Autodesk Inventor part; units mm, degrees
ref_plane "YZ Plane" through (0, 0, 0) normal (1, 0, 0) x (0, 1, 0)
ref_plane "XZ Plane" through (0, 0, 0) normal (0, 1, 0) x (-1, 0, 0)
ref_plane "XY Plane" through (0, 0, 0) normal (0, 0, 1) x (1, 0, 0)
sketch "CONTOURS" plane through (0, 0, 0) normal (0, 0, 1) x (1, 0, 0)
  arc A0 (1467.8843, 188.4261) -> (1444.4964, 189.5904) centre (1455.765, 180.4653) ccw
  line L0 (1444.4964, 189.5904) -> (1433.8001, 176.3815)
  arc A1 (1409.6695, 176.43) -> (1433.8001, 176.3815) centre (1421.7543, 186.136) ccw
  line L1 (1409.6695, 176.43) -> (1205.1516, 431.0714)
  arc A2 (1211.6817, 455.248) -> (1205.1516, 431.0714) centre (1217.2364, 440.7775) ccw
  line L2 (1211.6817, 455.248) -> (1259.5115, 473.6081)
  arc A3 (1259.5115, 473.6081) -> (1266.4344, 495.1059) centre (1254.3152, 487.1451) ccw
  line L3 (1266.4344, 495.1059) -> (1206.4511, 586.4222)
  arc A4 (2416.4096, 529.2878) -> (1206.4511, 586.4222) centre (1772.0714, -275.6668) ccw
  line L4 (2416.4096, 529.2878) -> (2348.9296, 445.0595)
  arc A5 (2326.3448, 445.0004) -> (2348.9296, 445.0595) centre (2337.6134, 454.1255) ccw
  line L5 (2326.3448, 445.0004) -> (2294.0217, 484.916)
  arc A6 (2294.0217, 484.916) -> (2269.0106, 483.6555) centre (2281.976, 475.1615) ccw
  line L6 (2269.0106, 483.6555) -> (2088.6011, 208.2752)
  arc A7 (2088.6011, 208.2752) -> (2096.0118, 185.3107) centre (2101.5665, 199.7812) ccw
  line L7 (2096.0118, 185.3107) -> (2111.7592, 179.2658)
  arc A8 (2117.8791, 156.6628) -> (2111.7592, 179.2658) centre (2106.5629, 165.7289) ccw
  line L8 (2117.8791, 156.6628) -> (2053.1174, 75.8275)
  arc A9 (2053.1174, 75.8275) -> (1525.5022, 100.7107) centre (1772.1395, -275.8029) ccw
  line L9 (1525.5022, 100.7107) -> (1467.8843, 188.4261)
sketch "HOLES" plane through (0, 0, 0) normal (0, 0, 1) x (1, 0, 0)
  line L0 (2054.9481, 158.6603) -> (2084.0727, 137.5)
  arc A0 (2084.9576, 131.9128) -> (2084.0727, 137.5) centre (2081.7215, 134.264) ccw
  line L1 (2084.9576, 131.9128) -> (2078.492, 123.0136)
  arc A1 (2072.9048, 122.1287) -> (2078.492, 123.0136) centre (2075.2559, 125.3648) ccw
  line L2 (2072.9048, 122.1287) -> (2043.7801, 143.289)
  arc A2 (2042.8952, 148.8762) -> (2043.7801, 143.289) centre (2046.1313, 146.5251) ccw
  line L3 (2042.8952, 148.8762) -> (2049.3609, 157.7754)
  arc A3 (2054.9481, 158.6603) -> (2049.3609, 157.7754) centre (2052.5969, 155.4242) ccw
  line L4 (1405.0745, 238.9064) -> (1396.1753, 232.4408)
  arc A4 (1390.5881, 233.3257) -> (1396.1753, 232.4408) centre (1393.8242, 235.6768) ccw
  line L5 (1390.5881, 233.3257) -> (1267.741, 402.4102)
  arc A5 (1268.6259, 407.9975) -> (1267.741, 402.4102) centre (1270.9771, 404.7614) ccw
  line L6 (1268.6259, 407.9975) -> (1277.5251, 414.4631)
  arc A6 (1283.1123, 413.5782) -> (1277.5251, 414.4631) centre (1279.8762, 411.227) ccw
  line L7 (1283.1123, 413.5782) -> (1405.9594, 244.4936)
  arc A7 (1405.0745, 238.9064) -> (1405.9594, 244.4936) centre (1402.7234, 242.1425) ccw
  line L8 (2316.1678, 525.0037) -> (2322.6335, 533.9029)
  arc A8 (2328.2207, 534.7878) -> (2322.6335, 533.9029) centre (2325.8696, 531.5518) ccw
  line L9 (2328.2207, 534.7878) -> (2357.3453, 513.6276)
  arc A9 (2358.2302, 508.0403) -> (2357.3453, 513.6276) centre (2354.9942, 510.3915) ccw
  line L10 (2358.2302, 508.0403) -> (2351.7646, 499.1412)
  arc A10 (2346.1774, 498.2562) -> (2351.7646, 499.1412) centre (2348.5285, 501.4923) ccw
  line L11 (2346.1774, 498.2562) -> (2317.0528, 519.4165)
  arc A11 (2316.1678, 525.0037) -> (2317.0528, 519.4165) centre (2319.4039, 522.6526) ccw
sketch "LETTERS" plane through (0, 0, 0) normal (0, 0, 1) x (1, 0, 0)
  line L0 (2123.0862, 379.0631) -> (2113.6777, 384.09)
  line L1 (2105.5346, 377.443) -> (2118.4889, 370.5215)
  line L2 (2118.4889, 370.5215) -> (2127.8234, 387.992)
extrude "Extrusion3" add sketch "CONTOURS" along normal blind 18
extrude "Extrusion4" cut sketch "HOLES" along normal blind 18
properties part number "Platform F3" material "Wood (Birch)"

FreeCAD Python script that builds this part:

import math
import FreeCAD as App
import Part
import Sketcher
Q = App.Units.Quantity

doc = App.newDocument("Part")
params = doc.addObject("Spreadsheet::Sheet", "Params")
for row, (alias, value) in enumerate([
    ("sketch1_radius", "14.5 mm"),
    ("sketch1_radius2", "15.5 mm"),
    ("pad1_length", "18 mm"),
    ("sketch2_radius", "4 mm"),
    ("sketch2_length", "36 mm"),
    ("sketch2_length2", "11 mm"),
    ("sketch2_length3", "209 mm"),
    ("pocket1_length", "18 mm"),
], start=1):
    params.set(f"A{row}", alias)
    params.set(f"B{row}", "=" + value)
    params.setAlias(f"B{row}", alias)

body = doc.addObject("PartDesign::Body", "Body")

# Sketch on XY plane
sketch1 = doc.addObject("Sketcher::SketchObject", "Sketch")
body.addObject(sketch1)
sketch1.AttachmentSupport = (doc.XY_Plane, [""])
sketch1.MapMode = "FlatFace"
sketch1.addGeometry([
    Part.ArcOfCircle(Part.Circle(App.Vector(1456, 180, 0), App.Vector(0, 0, 1), 15), math.radians(33), math.radians(141)),  # 0
    Part.LineSegment(App.Vector(1468, 188, 0), App.Vector(1526, 101, 0)),  # 1
    Part.ArcOfCircle(Part.Circle(App.Vector(1772, -276, 0), App.Vector(0, 0, 1), 450), math.radians(51), math.radians(123)),  # 2
    Part.LineSegment(App.Vector(2053, 76, 0), App.Vector(2118, 157, 0)),  # 3
    Part.ArcOfCircle(Part.Circle(App.Vector(2107, 166, 0), App.Vector(0, 0, 1), 15), math.radians(-39), math.radians(69)),  # 4
    Part.LineSegment(App.Vector(2112, 179, 0), App.Vector(2096, 185, 0)),  # 5
    Part.ArcOfCircle(Part.Circle(App.Vector(2102, 200, 0), App.Vector(0, 0, 1), 15), math.radians(147), math.radians(249)),  # 6
    Part.LineSegment(App.Vector(2089, 208, 0), App.Vector(2269, 484, 0)),  # 7
    Part.ArcOfCircle(Part.Circle(App.Vector(2282, 475, 0), App.Vector(0, 0, 1), 15), math.radians(39), math.radians(147)),  # 8
    Part.LineSegment(App.Vector(2294, 485, 0), App.Vector(2326, 445, 0)),  # 9
    Part.ArcOfCircle(Part.Circle(App.Vector(2338, 454, 0), App.Vector(0, 0, 1), 14), math.radians(-141), math.radians(-39)),  # 10
    Part.LineSegment(App.Vector(2349, 445, 0), App.Vector(2416, 529, 0)),  # 11
    Part.ArcOfCircle(Part.Circle(App.Vector(1772, -276, 0), App.Vector(0, 0, 1), 1031), math.radians(51), math.radians(123)),  # 12
    Part.LineSegment(App.Vector(1206, 586, 0), App.Vector(1266, 495, 0)),  # 13
    Part.ArcOfCircle(Part.Circle(App.Vector(1254, 487, 0), App.Vector(0, 0, 1), 15), math.radians(-69), math.radians(33)),  # 14
    Part.LineSegment(App.Vector(1260, 474, 0), App.Vector(1212, 455, 0)),  # 15
    Part.ArcOfCircle(Part.Circle(App.Vector(1217, 441, 0), App.Vector(0, 0, 1), 16), math.radians(111), math.radians(219)),  # 16
    Part.LineSegment(App.Vector(1205, 431, 0), App.Vector(1410, 176, 0)),  # 17
    Part.ArcOfCircle(Part.Circle(App.Vector(1422, 186, 0), App.Vector(0, 0, 1), 15), math.radians(-141), math.radians(-39)),  # 18
    Part.LineSegment(App.Vector(1434, 176, 0), App.Vector(1444, 190, 0)),  # 19
], False)
sketch1.addConstraint([
    Sketcher.Constraint("Tangent", 0, 1, 1, 1),
    Sketcher.Constraint("Coincident", 1, 2, 2, 2),
    Sketcher.Constraint("Coincident", 2, 1, 3, 1),
    Sketcher.Constraint("Tangent", 3, 2, 4, 1),
    Sketcher.Constraint("Tangent", 4, 2, 5, 1),
    Sketcher.Constraint("Tangent", 5, 2, 6, 2),
    Sketcher.Constraint("Tangent", 6, 1, 7, 1),
    Sketcher.Constraint("Tangent", 7, 2, 8, 2),
    Sketcher.Constraint("Tangent", 8, 1, 9, 1),
    Sketcher.Constraint("Tangent", 9, 2, 10, 1),
    Sketcher.Constraint("Tangent", 10, 2, 11, 1),
    Sketcher.Constraint("Coincident", 11, 2, 12, 1),
    Sketcher.Constraint("Coincident", 12, 2, 13, 1),
    Sketcher.Constraint("Tangent", 13, 2, 14, 2),
    Sketcher.Constraint("Tangent", 14, 1, 15, 1),
    Sketcher.Constraint("Tangent", 15, 2, 16, 1),
    Sketcher.Constraint("Tangent", 16, 2, 17, 1),
    Sketcher.Constraint("Tangent", 17, 2, 18, 1),
    Sketcher.Constraint("Tangent", 18, 2, 19, 1),
    Sketcher.Constraint("Tangent", 19, 2, 0, 2),
    Sketcher.Constraint("Equal", 0, 4),
    Sketcher.Constraint("Equal", 6, 8),
    Sketcher.Constraint("Equal", 4, 10),
    Sketcher.Constraint("Equal", 10, 14),
    Sketcher.Constraint("Equal", 8, 16),
    Sketcher.Constraint("Equal", 16, 18),
    Sketcher.Constraint("Parallel", 3, 11),
    Sketcher.Constraint("Parallel", 1, 13),
    Sketcher.Constraint("Radius", 0, Q("14.5 mm")),
    Sketcher.Constraint("Radius", 6, Q("15.5 mm")),
    Sketcher.Constraint("Angle", 5, Q("158.9999 deg")),
    Sketcher.Constraint("Angle", 9, Q("-51 deg")),
    Sketcher.Constraint("Angle", 15, Q("-159 deg")),
    Sketcher.Constraint("Angle", 19, Q("51.0001 deg")),
    Sketcher.Constraint("Angle", 1, Q("-56.7002 deg")),
    Sketcher.Constraint("Angle", 3, Q("51.2998 deg")),
    Sketcher.Constraint("DistanceX", -1, 1, 18, 2, Q("1433.8 mm")),
    Sketcher.Constraint("Angle", 7, Q("56.77 deg")),
    Sketcher.Constraint("Angle", 17, Q("-51.23 deg")),
    Sketcher.Constraint("Radius", 2, Q("450.1028 mm")),
    Sketcher.Constraint("Radius", 12, Q("1031.0789 mm")),
    Sketcher.Constraint("DistanceY", -1, 1, 17, 2, Q("176.43 mm")),
    Sketcher.Constraint("DistanceX", 16, 3, 6, 3, Q("884.33 mm")),
    Sketcher.Constraint("DistanceX", 18, 3, 0, 1, Q("46.13 mm")),
    Sketcher.Constraint("DistanceY", 10, 3, 7, 2, Q("29.53 mm")),
    Sketcher.Constraint("DistanceX", 10, 2, 11, 2, Q("67.48 mm")),
    Sketcher.Constraint("DistanceX", 13, 2, 18, 3, Q("155.32 mm")),
    Sketcher.Constraint("DistanceY", 18, 3, 13, 2, Q("308.97 mm")),
    Sketcher.Constraint("Distance", 3, Q("103.578 mm")),
    Sketcher.Constraint("Distance", 7, Q("329.214 mm")),
    Sketcher.Constraint("Distance", 13, Q("109.255 mm")),
    Sketcher.Constraint("DistanceY", 2, 3, -1, 1, Q("275.803 mm")),
    Sketcher.Constraint("DistanceX", -1, 1, 4, 3, Q("2106.563 mm")),
    Sketcher.Constraint("DistanceY", -1, 1, 4, 3, Q("165.729 mm")),
])
sketch1.setExpression("Constraints[28]", "Params.sketch1_radius")
sketch1.setExpression("Constraints[29]", "Params.sketch1_radius2")
pad1 = doc.addObject("PartDesign::Pad", "Pad")
body.addObject(pad1)
pad1.Profile = sketch1
pad1.setExpression("Length", "Params.pad1_length")

# Sketch on XY plane
sketch2 = doc.addObject("Sketcher::SketchObject", "Sketch001")
body.addObject(sketch2)
sketch2.AttachmentSupport = (doc.XY_Plane, [""])
sketch2.MapMode = "FlatFace"
sketch2.addGeometry([
    Part.LineSegment(App.Vector(2084.1, 137.5, 0), App.Vector(2054.9, 158.7, 0)),  # 0
    Part.ArcOfCircle(Part.Circle(App.Vector(2052.6, 155.4, 0), App.Vector(0, 0, 1), 4), math.radians(54), math.radians(144)),  # 1
    Part.LineSegment(App.Vector(2049.4, 157.8, 0), App.Vector(2042.9, 148.9, 0)),  # 2
    Part.ArcOfCircle(Part.Circle(App.Vector(2046.1, 146.5, 0), App.Vector(0, 0, 1), 4), math.radians(144), math.radians(234)),  # 3
    Part.LineSegment(App.Vector(2043.8, 143.3, 0), App.Vector(2072.9, 122.1, 0)),  # 4
    Part.ArcOfCircle(Part.Circle(App.Vector(2075.3, 125.4, 0), App.Vector(0, 0, 1), 4), math.radians(-126), math.radians(-36)),  # 5
    Part.LineSegment(App.Vector(2078.5, 123, 0), App.Vector(2085, 131.9, 0)),  # 6
    Part.ArcOfCircle(Part.Circle(App.Vector(2081.7, 134.3, 0), App.Vector(0, 0, 1), 4), math.radians(-36), math.radians(54)),  # 7
    Part.LineSegment(App.Vector(1396.2, 232.4, 0), App.Vector(1405.1, 238.9, 0)),  # 8
    Part.ArcOfCircle(Part.Circle(App.Vector(1402.7, 242.1, 0), App.Vector(0, 0, 1), 4), math.radians(-54), math.radians(36)),  # 9
    Part.LineSegment(App.Vector(1406, 244.5, 0), App.Vector(1283.1, 413.6, 0)),  # 10
    Part.ArcOfCircle(Part.Circle(App.Vector(1279.9, 411.2, 0), App.Vector(0, 0, 1), 4), math.radians(36), math.radians(126)),  # 11
    Part.LineSegment(App.Vector(1277.5, 414.5, 0), App.Vector(1268.6, 408, 0)),  # 12
    Part.ArcOfCircle(Part.Circle(App.Vector(1271, 404.8, 0), App.Vector(0, 0, 1), 4), math.radians(126), math.radians(216)),  # 13
    Part.LineSegment(App.Vector(1267.7, 402.4, 0), App.Vector(1390.6, 233.3, 0)),  # 14
    Part.ArcOfCircle(Part.Circle(App.Vector(1393.8, 235.7, 0), App.Vector(0, 0, 1), 4), math.radians(-144), math.radians(-54)),  # 15
    Part.LineSegment(App.Vector(2322.6, 533.9, 0), App.Vector(2316.2, 525, 0)),  # 16
    Part.ArcOfCircle(Part.Circle(App.Vector(2319.4, 522.7, 0), App.Vector(0, 0, 1), 4), math.radians(144), math.radians(234)),  # 17
    Part.LineSegment(App.Vector(2317.1, 519.4, 0), App.Vector(2346.2, 498.3, 0)),  # 18
    Part.ArcOfCircle(Part.Circle(App.Vector(2348.5, 501.5, 0), App.Vector(0, 0, 1), 4), math.radians(-126), math.radians(-36)),  # 19
    Part.LineSegment(App.Vector(2351.8, 499.1, 0), App.Vector(2358.2, 508, 0)),  # 20
    Part.ArcOfCircle(Part.Circle(App.Vector(2355, 510.4, 0), App.Vector(0, 0, 1), 4), math.radians(-36), math.radians(54)),  # 21
    Part.LineSegment(App.Vector(2357.3, 513.6, 0), App.Vector(2328.2, 534.8, 0)),  # 22
    Part.ArcOfCircle(Part.Circle(App.Vector(2325.9, 531.6, 0), App.Vector(0, 0, 1), 4), math.radians(54), math.radians(144)),  # 23
], False)
sketch2.addConstraint([
    Sketcher.Constraint("Tangent", 0, 2, 1, 1),
    Sketcher.Constraint("Tangent", 1, 2, 2, 1),
    Sketcher.Constraint("Tangent", 2, 2, 3, 1),
    Sketcher.Constraint("Tangent", 3, 2, 4, 1),
    Sketcher.Constraint("Tangent", 4, 2, 5, 1),
    Sketcher.Constraint("Tangent", 5, 2, 6, 1),
    Sketcher.Constraint("Tangent", 6, 2, 7, 1),
    Sketcher.Constraint("Tangent", 7, 2, 0, 1),
    Sketcher.Constraint("Tangent", 8, 2, 9, 1),
    Sketcher.Constraint("Tangent", 9, 2, 10, 1),
    Sketcher.Constraint("Tangent", 10, 2, 11, 1),
    Sketcher.Constraint("Tangent", 11, 2, 12, 1),
    Sketcher.Constraint("Tangent", 12, 2, 13, 1),
    Sketcher.Constraint("Tangent", 13, 2, 14, 1),
    Sketcher.Constraint("Tangent", 14, 2, 15, 1),
    Sketcher.Constraint("Tangent", 15, 2, 8, 1),
    Sketcher.Constraint("Tangent", 16, 2, 17, 1),
    Sketcher.Constraint("Tangent", 17, 2, 18, 1),
    Sketcher.Constraint("Tangent", 18, 2, 19, 1),
    Sketcher.Constraint("Tangent", 19, 2, 20, 1),
    Sketcher.Constraint("Tangent", 20, 2, 21, 1),
    Sketcher.Constraint("Tangent", 21, 2, 22, 1),
    Sketcher.Constraint("Tangent", 22, 2, 23, 1),
    Sketcher.Constraint("Tangent", 23, 2, 16, 1),
    Sketcher.Constraint("Equal", 1, 3),
    Sketcher.Constraint("Equal", 3, 5),
    Sketcher.Constraint("Equal", 5, 7),
    Sketcher.Constraint("Equal", 7, 9),
    Sketcher.Constraint("Equal", 9, 11),
    Sketcher.Constraint("Equal", 11, 13),
    Sketcher.Constraint("Equal", 13, 15),
    Sketcher.Constraint("Equal", 15, 17),
    Sketcher.Constraint("Equal", 17, 19),
    Sketcher.Constraint("Equal", 19, 21),
    Sketcher.Constraint("Equal", 21, 23),
    Sketcher.Constraint("Perpendicular", 0, 2),
    Sketcher.Constraint("Perpendicular", 2, 4),
    Sketcher.Constraint("Perpendicular", 4, 6),
    Sketcher.Constraint("Perpendicular", 8, 10),
    Sketcher.Constraint("Perpendicular", 10, 12),
    Sketcher.Constraint("Perpendicular", 12, 14),
    Sketcher.Constraint("Parallel", 6, 16),
    Sketcher.Constraint("Perpendicular", 16, 18),
    Sketcher.Constraint("Perpendicular", 18, 20),
    Sketcher.Constraint("Perpendicular", 20, 22),
    Sketcher.Constraint("Equal", 6, 8),
    Sketcher.Constraint("Equal", 12, 16),
    Sketcher.Constraint("Equal", 4, 18),
    Sketcher.Constraint("Radius", 1, Q("4 mm")),
    Sketcher.Constraint("Angle", 0, Q("144 deg")),
    Sketcher.Constraint("Angle", 8, Q("35.9998 deg")),
    Sketcher.Constraint("Distance", 0, Q("36 mm")),
    Sketcher.Constraint("Distance", 2, Q("11 mm")),
    Sketcher.Constraint("Distance", 10, Q("209 mm")),
    Sketcher.Constraint("DistanceY", -1, 1, 7, 2, Q("137.5 mm")),
    Sketcher.Constraint("DistanceY", 9, 3, 17, 3, Q("280.51 mm")),
    Sketcher.Constraint("DistanceX", -1, 1, 1, 3, Q("2052.597 mm")),
    Sketcher.Constraint("DistanceY", -1, 1, 11, 3, Q("411.227 mm")),
    Sketcher.Constraint("DistanceX", -1, 1, 13, 3, Q("1270.977 mm")),
    Sketcher.Constraint("DistanceX", -1, 1, 17, 3, Q("2319.404 mm")),
])
sketch2.setExpression("Constraints[48]", "Params.sketch2_radius")
sketch2.setExpression("Constraints[51]", "Params.sketch2_length")
sketch2.setExpression("Constraints[52]", "Params.sketch2_length2")
sketch2.setExpression("Constraints[53]", "Params.sketch2_length3")
pocket1 = doc.addObject("PartDesign::Pocket", "Pocket")
body.addObject(pocket1)
pocket1.Profile = sketch2
pocket1.setExpression("Length", "Params.pocket1_length")
pocket1.Reversed = True

doc.recompute()
